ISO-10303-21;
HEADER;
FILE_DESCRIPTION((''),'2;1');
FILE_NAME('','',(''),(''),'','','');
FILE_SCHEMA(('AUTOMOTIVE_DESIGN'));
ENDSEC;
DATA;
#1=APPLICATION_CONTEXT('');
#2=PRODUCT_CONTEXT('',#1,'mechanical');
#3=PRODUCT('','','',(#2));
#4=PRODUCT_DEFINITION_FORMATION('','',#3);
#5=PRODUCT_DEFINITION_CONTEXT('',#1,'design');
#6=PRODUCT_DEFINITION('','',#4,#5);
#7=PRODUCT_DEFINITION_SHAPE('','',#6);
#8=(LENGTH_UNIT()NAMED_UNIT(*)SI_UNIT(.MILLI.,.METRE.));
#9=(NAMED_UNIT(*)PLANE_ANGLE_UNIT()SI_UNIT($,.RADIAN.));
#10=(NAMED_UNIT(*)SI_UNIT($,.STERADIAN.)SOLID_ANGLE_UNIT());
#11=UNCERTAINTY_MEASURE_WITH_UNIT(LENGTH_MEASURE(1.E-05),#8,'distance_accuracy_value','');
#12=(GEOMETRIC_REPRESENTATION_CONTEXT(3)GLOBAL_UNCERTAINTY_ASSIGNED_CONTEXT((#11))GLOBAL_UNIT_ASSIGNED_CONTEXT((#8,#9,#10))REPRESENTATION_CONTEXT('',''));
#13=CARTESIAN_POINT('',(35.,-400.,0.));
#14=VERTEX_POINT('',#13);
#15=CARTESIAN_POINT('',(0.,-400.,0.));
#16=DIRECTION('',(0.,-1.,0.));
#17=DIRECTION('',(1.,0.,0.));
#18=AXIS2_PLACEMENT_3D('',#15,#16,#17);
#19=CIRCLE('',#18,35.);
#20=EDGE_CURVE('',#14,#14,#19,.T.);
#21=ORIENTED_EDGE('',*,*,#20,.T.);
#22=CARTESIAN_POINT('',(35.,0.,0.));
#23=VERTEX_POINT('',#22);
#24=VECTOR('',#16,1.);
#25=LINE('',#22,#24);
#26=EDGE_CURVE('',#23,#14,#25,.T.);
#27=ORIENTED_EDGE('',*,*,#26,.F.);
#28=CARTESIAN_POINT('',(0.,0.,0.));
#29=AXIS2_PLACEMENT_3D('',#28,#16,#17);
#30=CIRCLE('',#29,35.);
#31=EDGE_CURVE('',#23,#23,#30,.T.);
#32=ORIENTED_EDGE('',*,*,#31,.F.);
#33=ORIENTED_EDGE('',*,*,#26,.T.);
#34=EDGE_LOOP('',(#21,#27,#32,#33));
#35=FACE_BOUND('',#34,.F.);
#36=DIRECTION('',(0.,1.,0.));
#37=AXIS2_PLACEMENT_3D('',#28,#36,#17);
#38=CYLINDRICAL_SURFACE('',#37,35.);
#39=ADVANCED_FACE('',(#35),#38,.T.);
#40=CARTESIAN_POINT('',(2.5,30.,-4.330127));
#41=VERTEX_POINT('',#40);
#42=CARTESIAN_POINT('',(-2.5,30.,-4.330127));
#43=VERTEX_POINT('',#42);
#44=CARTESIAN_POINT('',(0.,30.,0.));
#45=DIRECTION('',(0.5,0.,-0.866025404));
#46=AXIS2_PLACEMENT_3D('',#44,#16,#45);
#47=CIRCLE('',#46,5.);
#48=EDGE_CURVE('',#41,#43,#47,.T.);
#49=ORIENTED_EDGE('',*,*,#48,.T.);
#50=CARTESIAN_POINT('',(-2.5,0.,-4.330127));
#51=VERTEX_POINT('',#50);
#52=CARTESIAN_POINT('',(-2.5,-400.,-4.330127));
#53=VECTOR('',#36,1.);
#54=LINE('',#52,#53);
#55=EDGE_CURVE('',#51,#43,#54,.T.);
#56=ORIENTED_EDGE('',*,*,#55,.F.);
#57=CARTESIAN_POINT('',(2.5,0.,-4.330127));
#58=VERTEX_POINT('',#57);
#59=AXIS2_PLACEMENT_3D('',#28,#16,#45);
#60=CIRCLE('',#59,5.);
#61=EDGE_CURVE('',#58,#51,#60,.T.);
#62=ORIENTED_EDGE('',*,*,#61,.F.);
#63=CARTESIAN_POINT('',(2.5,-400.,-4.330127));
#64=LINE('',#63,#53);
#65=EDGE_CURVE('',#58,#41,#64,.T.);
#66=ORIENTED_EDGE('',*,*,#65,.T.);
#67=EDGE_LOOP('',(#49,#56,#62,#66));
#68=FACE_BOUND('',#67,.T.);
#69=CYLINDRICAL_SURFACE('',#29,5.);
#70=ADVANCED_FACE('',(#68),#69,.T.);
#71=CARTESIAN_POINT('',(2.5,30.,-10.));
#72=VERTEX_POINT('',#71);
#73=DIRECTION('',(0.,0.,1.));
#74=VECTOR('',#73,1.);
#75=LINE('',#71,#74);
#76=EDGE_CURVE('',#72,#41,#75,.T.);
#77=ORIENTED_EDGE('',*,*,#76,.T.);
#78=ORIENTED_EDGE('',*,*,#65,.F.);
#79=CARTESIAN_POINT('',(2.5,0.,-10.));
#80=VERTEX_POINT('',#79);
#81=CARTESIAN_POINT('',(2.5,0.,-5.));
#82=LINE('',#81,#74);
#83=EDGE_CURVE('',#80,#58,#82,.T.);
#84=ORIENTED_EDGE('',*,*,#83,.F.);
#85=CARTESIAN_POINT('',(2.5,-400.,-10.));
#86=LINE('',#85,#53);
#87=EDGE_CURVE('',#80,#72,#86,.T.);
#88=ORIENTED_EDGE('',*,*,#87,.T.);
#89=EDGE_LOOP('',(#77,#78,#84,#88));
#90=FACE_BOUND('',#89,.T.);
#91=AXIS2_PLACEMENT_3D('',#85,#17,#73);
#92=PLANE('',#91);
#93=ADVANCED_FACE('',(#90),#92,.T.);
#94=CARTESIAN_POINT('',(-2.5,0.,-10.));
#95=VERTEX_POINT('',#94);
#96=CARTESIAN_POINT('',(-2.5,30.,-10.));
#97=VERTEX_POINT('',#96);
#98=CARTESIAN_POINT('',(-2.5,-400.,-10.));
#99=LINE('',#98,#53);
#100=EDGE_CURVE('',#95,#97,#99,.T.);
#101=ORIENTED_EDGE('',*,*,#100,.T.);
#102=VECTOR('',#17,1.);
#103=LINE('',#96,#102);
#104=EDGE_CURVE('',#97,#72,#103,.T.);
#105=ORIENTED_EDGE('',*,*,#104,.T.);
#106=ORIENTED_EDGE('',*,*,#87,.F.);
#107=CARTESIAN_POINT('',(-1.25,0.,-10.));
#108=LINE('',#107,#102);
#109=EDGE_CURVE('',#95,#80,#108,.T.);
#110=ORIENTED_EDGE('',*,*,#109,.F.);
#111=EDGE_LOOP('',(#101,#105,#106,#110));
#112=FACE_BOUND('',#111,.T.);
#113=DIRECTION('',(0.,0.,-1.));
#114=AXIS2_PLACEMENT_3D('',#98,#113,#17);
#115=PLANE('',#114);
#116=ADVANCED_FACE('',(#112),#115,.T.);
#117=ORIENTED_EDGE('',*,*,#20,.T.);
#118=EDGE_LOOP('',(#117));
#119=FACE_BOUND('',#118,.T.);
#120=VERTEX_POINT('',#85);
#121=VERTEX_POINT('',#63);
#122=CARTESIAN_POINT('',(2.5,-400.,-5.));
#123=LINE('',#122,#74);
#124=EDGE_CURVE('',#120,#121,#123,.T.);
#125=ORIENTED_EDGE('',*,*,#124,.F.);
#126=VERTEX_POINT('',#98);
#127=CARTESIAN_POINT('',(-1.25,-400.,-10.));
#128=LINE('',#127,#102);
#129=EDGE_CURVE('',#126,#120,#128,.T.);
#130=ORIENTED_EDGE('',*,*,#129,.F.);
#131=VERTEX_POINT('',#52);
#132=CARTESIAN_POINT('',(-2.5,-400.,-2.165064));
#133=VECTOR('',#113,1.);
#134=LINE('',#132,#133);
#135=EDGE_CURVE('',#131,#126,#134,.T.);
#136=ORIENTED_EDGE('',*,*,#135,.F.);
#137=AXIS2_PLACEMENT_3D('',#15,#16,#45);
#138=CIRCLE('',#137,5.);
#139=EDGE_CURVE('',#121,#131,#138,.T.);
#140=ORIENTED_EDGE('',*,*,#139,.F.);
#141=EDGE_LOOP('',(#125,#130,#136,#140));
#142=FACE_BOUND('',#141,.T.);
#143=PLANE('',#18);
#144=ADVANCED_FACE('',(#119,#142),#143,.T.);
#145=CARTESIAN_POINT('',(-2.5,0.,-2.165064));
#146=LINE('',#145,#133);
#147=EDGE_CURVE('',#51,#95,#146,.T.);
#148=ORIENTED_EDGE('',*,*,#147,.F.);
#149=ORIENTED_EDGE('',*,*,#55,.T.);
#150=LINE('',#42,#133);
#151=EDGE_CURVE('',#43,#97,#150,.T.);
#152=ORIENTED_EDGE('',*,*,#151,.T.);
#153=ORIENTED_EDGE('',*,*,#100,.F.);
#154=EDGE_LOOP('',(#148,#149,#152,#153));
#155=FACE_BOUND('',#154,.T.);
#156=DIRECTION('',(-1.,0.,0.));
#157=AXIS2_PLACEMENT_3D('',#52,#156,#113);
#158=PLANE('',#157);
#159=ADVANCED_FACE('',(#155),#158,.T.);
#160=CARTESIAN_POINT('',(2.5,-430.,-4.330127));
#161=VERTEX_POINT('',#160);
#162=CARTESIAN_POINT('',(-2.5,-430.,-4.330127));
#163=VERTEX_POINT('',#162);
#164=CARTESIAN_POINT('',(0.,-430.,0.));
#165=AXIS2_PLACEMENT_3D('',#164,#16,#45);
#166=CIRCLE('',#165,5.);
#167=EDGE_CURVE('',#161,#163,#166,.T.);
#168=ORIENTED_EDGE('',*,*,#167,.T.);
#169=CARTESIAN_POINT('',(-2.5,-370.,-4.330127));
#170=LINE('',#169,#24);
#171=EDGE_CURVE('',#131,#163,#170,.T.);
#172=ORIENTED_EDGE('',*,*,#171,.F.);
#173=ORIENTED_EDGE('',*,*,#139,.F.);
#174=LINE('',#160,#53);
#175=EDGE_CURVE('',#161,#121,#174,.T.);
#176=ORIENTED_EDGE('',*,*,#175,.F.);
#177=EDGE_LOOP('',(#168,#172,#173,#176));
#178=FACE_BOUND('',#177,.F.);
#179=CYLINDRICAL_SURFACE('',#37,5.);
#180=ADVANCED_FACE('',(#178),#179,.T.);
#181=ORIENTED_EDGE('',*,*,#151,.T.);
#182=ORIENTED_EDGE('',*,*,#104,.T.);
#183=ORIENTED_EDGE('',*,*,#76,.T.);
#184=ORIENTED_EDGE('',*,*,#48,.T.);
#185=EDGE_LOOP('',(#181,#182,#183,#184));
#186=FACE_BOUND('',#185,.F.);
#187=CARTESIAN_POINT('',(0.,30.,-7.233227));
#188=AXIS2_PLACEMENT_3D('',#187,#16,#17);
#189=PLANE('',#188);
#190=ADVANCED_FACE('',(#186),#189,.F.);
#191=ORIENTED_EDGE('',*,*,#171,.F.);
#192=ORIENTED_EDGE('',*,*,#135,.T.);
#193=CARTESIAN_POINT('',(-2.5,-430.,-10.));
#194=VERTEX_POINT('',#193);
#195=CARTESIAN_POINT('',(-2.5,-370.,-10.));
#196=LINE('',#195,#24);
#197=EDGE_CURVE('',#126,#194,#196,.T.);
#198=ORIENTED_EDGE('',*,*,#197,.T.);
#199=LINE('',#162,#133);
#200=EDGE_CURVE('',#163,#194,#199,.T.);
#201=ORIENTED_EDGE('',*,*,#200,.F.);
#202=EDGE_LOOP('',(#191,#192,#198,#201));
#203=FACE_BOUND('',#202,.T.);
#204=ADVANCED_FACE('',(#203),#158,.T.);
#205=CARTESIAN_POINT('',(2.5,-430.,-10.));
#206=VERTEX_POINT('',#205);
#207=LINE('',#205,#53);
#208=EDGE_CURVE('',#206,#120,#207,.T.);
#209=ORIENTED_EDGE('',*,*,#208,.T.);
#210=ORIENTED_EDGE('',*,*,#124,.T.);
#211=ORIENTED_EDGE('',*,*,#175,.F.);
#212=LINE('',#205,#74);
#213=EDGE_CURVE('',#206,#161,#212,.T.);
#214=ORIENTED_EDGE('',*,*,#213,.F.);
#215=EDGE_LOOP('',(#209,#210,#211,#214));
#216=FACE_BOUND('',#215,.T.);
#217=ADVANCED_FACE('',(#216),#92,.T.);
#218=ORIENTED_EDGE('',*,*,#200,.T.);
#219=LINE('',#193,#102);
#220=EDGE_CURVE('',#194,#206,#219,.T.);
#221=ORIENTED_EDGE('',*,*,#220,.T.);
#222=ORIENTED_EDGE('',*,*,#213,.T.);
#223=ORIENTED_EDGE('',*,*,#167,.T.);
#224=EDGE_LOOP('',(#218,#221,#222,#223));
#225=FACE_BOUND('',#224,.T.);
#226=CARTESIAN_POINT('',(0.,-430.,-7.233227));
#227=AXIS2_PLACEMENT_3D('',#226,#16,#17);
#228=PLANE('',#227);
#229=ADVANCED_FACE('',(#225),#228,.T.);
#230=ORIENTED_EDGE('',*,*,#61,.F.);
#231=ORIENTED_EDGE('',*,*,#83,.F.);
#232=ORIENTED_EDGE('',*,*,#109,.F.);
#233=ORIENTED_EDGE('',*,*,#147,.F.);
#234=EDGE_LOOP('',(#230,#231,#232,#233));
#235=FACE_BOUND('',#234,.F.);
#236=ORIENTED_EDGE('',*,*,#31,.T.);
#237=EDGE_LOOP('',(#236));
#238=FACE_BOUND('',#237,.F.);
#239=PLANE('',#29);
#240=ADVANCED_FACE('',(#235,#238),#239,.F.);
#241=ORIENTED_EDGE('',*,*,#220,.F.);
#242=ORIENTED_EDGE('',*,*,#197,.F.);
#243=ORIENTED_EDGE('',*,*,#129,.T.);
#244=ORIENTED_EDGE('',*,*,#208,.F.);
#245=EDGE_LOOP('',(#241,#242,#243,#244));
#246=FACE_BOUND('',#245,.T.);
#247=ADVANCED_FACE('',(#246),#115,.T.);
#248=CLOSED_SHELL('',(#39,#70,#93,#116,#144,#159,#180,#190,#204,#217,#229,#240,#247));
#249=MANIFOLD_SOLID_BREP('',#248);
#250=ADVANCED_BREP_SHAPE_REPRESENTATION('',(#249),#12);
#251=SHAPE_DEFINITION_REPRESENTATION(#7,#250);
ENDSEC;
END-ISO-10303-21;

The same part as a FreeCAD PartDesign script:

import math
import FreeCAD as App
import Part
import Sketcher

doc = App.newDocument("Part")
body = doc.addObject("PartDesign::Body", "Body")

sketch1 = doc.addObject("Sketcher::SketchObject", "Sketch")
body.addObject(sketch1)
sketch1.AttachmentSupport = (doc.XZ_Plane, [""])
sketch1.MapMode = "FlatFace"
sketch1.addGeometry(Part.Circle(App.Vector(0, 0, 0), App.Vector(0, 0, 1), 35), False)
sketch1.addConstraint(Sketcher.Constraint("Coincident", 0, 3, -1, 1))
sketch1.addConstraint(Sketcher.Constraint("Diameter", 0, 70.0))
pad1 = doc.addObject("PartDesign::Pad", "Pad")
body.addObject(pad1)
pad1.Profile = sketch1
pad1.Length = 400

sketch2 = doc.addObject("Sketcher::SketchObject", "Sketch001")
body.addObject(sketch2)
sketch2.AttachmentSupport = (doc.XZ_Plane, [""])
sketch2.MapMode = "FlatFace"
sketch2.addGeometry(Part.Circle(App.Vector(0, 0, 0), App.Vector(0, 0, 1), 5), False)
sketch2.addConstraint(Sketcher.Constraint("Coincident", 0, 3, -1, 1))
sketch2.addConstraint(Sketcher.Constraint("Diameter", 0, 10.0))
pad2 = doc.addObject("PartDesign::Pad", "Pad001")
body.addObject(pad2)
pad2.Profile = sketch2
pad2.Length = 30
pad2.Reversed = True

sketch3 = doc.addObject("Sketcher::SketchObject", "Sketch002")
body.addObject(sketch3)
sketch3.AttachmentSupport = (doc.XZ_Plane, [""])
sketch3.MapMode = "FlatFace"
sketch3.addGeometry(Part.Circle(App.Vector(0, 0, 0), App.Vector(0, 0, 1), 5), False)
sketch3.addConstraint(Sketcher.Constraint("Coincident", 0, 3, -1, 1))
sketch3.addConstraint(Sketcher.Constraint("Diameter", 0, 10.0))
pad3 = doc.addObject("PartDesign::Pad", "Pad002")
body.addObject(pad3)
pad3.Profile = sketch3
pad3.Length = 430

sketch4 = doc.addObject("Sketcher::SketchObject", "Sketch003")
body.addObject(sketch4)
sketch4.AttachmentSupport = (doc.XZ_Plane, [""])
sketch4.MapMode = "FlatFace"
sketch4.AttachmentOffset = App.Placement(App.Vector(0, 0, 400), App.Rotation())
sketch4.addGeometry(Part.ArcOfCircle(Part.Circle(App.Vector(0, 0, 0), App.Vector(0, 0, 1), 5), math.radians(-120), math.radians(-60)), False)
sketch4.addGeometry(Part.LineSegment(App.Vector(-2, -4, 0), App.Vector(-2, -10, 0)), False)
sketch4.addGeometry(Part.LineSegment(App.Vector(-2, -10, 0), App.Vector(2, -10, 0)), False)
sketch4.addGeometry(Part.LineSegment(App.Vector(2, -10, 0), App.Vector(2, -4, 0)), False)
sketch4.addConstraint(Sketcher.Constraint("Coincident", 0, 1, 1, 1))
sketch4.addConstraint(Sketcher.Constraint("Coincident", 1, 2, 2, 1))
sketch4.addConstraint(Sketcher.Constraint("Coincident", 2, 2, 3, 1))
sketch4.addConstraint(Sketcher.Constraint("Coincident", 3, 2, 0, 2))
sketch4.addConstraint(Sketcher.Constraint("Vertical", 1))
sketch4.addConstraint(Sketcher.Constraint("Horizontal", 2))
sketch4.addConstraint(Sketcher.Constraint("Vertical", 3))
sketch4.addConstraint(Sketcher.Constraint("Coincident", 0, 3, -1, 1))
sketch4.addConstraint(Sketcher.Constraint("Horizontal", 0, 1, 3, 2))
sketch4.addConstraint(Sketcher.Constraint("Radius", 0, 5.0))
sketch4.addConstraint(Sketcher.Constraint("DistanceX", 2, 1, 2, 2, 5.0))
sketch4.addConstraint(Sketcher.Constraint("DistanceY", 1, 2, -1, 1, 10.0))
pad4 = doc.addObject("PartDesign::Pad", "Pad003")
body.addObject(pad4)
pad4.Profile = sketch4
pad4.Length = 60
pad4.Midplane = True

sketch5 = doc.addObject("Sketcher::SketchObject", "Sketch004")
body.addObject(sketch5)
sketch5.AttachmentSupport = (doc.XZ_Plane, [""])
sketch5.MapMode = "FlatFace"
sketch5.AttachmentOffset = App.Placement(App.Vector(0, 0, 400), App.Rotation())
sketch5.addGeometry(Part.ArcOfCircle(Part.Circle(App.Vector(0, 0, 0), App.Vector(0, 0, 1), 5), math.radians(-120), math.radians(-60)), False)
sketch5.addGeometry(Part.LineSegment(App.Vector(-2, -4, 0), App.Vector(-2, -10, 0)), False)
sketch5.addGeometry(Part.LineSegment(App.Vector(-2, -10, 0), App.Vector(2, -10, 0)), False)
sketch5.addGeometry(Part.LineSegment(App.Vector(2, -10, 0), App.Vector(2, -4, 0)), False)
sketch5.addConstraint(Sketcher.Constraint("Coincident", 0, 1, 1, 1))
sketch5.addConstraint(Sketcher.Constraint("Coincident", 1, 2, 2, 1))
sketch5.addConstraint(Sketcher.Constraint("Coincident", 2, 2, 3, 1))
sketch5.addConstraint(Sketcher.Constraint("Coincident", 3, 2, 0, 2))
sketch5.addConstraint(Sketcher.Constraint("Vertical", 1))
sketch5.addConstraint(Sketcher.Constraint("Horizontal", 2))
sketch5.addConstraint(Sketcher.Constraint("Vertical", 3))
sketch5.addConstraint(Sketcher.Constraint("Coincident", 0, 3, -1, 1))
sketch5.addConstraint(Sketcher.Constraint("Horizontal", 0, 1, 3, 2))
sketch5.addConstraint(Sketcher.Constraint("Radius", 0, 5.0))
sketch5.addConstraint(Sketcher.Constraint("DistanceX", 2, 1, 2, 2, 5.0))
sketch5.addConstraint(Sketcher.Constraint("DistanceY", 1, 2, -1, 1, 10.0))
pad5 = doc.addObject("PartDesign::Pad", "Pad004")
body.addObject(pad5)
pad5.Profile = sketch5
pad5.Length = 430
pad5.Reversed = True

doc.recompute()
